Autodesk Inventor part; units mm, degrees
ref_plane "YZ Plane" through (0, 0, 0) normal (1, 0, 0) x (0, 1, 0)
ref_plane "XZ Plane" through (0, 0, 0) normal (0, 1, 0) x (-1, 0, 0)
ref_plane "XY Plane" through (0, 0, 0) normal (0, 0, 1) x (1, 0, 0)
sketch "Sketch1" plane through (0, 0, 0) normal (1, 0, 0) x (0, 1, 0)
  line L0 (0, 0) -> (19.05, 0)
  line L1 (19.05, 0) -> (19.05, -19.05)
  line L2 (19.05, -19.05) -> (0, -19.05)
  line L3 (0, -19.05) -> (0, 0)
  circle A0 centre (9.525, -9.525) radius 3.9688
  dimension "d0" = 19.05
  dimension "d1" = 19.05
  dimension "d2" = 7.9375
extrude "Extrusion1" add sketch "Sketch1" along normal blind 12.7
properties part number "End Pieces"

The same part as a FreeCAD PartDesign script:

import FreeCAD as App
import Part
import Sketcher
Q = App.Units.Quantity


def add_polygon(sketch, points):
    """Adds a closed chain of lines whose ends are joined by coincident constraints."""
    first, n = sketch.GeometryCount, len(points)
    for a, b in zip(points, points[1:] + points[:1]):
        sketch.addGeometry(Part.LineSegment(App.Vector(*a, 0), App.Vector(*b, 0)), False)
    for i in range(n):
        sketch.addConstraint(Sketcher.Constraint("Coincident", first + i, 2, first + (i + 1) % n, 1))

doc = App.newDocument("Part")
body = doc.addObject("PartDesign::Body", "Body")

sketch1 = body.newObject("Sketcher::SketchObject", "Sketch")
sketch1.AttachmentSupport = (doc.getObject("YZ_Plane"), [""])
sketch1.MapMode = "FlatFace"
add_polygon(sketch1, [(19.1, 0), (0, 0), (0, -19.1), (19.1, -19.1)])
sketch1.addGeometry(Part.Circle(App.Vector(9.5, -9.5, 0), App.Vector(0, 0, 1), 4), False)
sketch1.addConstraint([
    Sketcher.Constraint("Horizontal", 0),
    Sketcher.Constraint("Vertical", 1),
    Sketcher.Constraint("Horizontal", 2),
    Sketcher.Constraint("Vertical", 3),
    Sketcher.Constraint("Coincident", 0, 2, -1, 1),
    Sketcher.Constraint("Equal", 2, 1),
    Sketcher.Constraint("Diameter", 4, Q("0.3125 in")),
    Sketcher.Constraint("DistanceX", 0, 2, 0, 1, Q("0.75 in")),
    Sketcher.Constraint("DistanceX", -1, 1, 4, 3, Q("0.375 in")),
    Sketcher.Constraint("DistanceY", 4, 3, -1, 1, Q("0.375 in")),
])
pad1 = body.newObject("PartDesign::Pad", "Pad")
pad1.Profile = sketch1
pad1.Length = Q("0.5 in")

doc.recompute()
